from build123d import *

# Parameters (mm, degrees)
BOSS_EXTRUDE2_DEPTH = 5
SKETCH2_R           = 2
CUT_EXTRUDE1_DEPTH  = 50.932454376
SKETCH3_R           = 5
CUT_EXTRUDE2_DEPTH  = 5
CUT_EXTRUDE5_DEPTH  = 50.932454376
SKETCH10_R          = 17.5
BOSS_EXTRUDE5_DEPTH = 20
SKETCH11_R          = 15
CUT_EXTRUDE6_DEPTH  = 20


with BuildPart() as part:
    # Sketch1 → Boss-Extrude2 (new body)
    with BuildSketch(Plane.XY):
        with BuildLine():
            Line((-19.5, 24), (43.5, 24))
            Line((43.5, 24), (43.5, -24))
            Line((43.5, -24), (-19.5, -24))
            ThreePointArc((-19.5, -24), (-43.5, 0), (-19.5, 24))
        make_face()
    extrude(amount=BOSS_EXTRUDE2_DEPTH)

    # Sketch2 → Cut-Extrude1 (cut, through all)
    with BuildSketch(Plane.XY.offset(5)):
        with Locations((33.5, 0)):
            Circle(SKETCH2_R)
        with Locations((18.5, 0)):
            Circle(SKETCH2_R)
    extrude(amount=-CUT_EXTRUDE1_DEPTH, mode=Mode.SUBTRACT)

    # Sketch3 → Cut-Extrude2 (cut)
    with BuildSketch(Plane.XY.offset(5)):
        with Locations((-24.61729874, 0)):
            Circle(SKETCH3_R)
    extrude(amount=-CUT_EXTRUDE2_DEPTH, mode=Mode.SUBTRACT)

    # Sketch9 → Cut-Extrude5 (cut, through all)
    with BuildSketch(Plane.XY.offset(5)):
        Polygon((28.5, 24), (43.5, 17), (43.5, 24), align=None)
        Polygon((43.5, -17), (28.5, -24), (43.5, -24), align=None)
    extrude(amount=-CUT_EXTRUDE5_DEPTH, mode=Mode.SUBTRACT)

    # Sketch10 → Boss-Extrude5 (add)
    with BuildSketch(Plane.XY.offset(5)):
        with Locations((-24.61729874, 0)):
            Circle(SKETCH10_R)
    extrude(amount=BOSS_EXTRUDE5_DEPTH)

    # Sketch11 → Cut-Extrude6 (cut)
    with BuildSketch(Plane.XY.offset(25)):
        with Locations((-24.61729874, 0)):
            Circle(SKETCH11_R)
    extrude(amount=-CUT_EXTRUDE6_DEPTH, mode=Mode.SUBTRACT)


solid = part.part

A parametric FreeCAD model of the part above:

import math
import FreeCAD as App
import Part
import Sketcher

doc = App.newDocument("Part")
params = doc.addObject("Spreadsheet::Sheet", "Params")
for row, (alias, value) in enumerate([
    ("sketch1_radius", "24 mm"),
    ("sketch1_width", "63 mm"),
    ("pad1_length", "5 mm"),
    ("sketch2_diameter", "4 mm"),
    ("sketch3_diameter", "10 mm"),
    ("pocket2_length", "5 mm"),
    ("sketch4_width", "15 mm"),
    ("sketch4_height", "7 mm"),
    ("sketch5_diameter", "35 mm"),
    ("pad2_length", "20 mm"),
    ("sketch6_diameter", "30 mm"),
    ("pocket4_length", "20 mm"),
], start=1):
    params.set(f"A{row}", alias)
    params.set(f"B{row}", "=" + value)
    params.setAlias(f"B{row}", alias)

body = doc.addObject("PartDesign::Body", "Body")

# Sketch on XY plane
sketch1 = body.newObject("Sketcher::SketchObject", "Sketch")
sketch1.AttachmentSupport = (doc.getObject("XY_Plane"), [""])
sketch1.MapMode = "FlatFace"
sketch1.addGeometry(Part.LineSegment(App.Vector(43.5, 24, 0), App.Vector(-19.5, 24, 0)), False)
sketch1.addGeometry(Part.ArcOfCircle(Part.Circle(App.Vector(-19.5, 0, 0), App.Vector(0, 0, 1), 24), math.radians(90), math.radians(270)), False)
sketch1.addGeometry(Part.LineSegment(App.Vector(-19.5, -24, 0), App.Vector(43.5, -24, 0)), False)
sketch1.addGeometry(Part.LineSegment(App.Vector(43.5, -24, 0), App.Vector(43.5, 24, 0)), False)
sketch1.addConstraint(Sketcher.Constraint("Tangent", 0, 2, 1, 1))
sketch1.addConstraint(Sketcher.Constraint("Tangent", 1, 2, 2, 1))
sketch1.addConstraint(Sketcher.Constraint("Coincident", 2, 2, 3, 1))
sketch1.addConstraint(Sketcher.Constraint("Coincident", 3, 2, 0, 1))
sketch1.addConstraint(Sketcher.Constraint("Horizontal", 0))
sketch1.addConstraint(Sketcher.Constraint("Horizontal", 2))
sketch1.addConstraint(Sketcher.Constraint("Vertical", 3))
sketch1.addConstraint(Sketcher.Constraint("PointOnObject", 1, 3, -1))
sketch1.addConstraint(Sketcher.Constraint("Radius", 1, 24.0))
sketch1.addConstraint(Sketcher.Constraint("DistanceX", 0, 2, 0, 1, 63.0))
sketch1.addConstraint(Sketcher.Constraint("DistanceX", 1, 3, -1, 1, 19.5))
sketch1.setExpression("Constraints[8]", "Params.sketch1_radius")
sketch1.setExpression("Constraints[9]", "Params.sketch1_width")
pad1 = body.newObject("PartDesign::Pad", "Pad")
pad1.Profile = sketch1
pad1.setExpression("Length", "Params.pad1_length")

# Sketch on XY plane
sketch2 = body.newObject("Sketcher::SketchObject", "Sketch001")
sketch2.AttachmentSupport = (doc.getObject("XY_Plane"), [""])
sketch2.MapMode = "FlatFace"
sketch2.AttachmentOffset = App.Placement(App.Vector(0, 0, 5), App.Rotation())
sketch2.addGeometry(Part.Circle(App.Vector(33.5, 0, 0), App.Vector(0, 0, 1), 2), False)
sketch2.addGeometry(Part.Circle(App.Vector(18.5, 0, 0), App.Vector(0, 0, 1), 2), False)
sketch2.addConstraint(Sketcher.Constraint("Equal", 0, 1))
sketch2.addConstraint(Sketcher.Constraint("PointOnObject", 0, 3, -1))
sketch2.addConstraint(Sketcher.Constraint("PointOnObject", 1, 3, -1))
sketch2.addConstraint(Sketcher.Constraint("Diameter", 0, 4.0))
sketch2.addConstraint(Sketcher.Constraint("DistanceX", 1, 3, 0, 3, 15.0))
sketch2.addConstraint(Sketcher.Constraint("DistanceX", -1, 1, 0, 3, 33.5))
sketch2.setExpression("Constraints[3]", "Params.sketch2_diameter")
pocket1 = body.newObject("PartDesign::Pocket", "Pocket")
pocket1.Profile = sketch2
pocket1.Type = "ThroughAll"

# Sketch on XY plane
sketch3 = body.newObject("Sketcher::SketchObject", "Sketch002")
sketch3.AttachmentSupport = (doc.getObject("XY_Plane"), [""])
sketch3.MapMode = "FlatFace"
sketch3.AttachmentOffset = App.Placement(App.Vector(0, 0, 5), App.Rotation())
sketch3.addGeometry(Part.Circle(App.Vector(-24.617299, 0, 0), App.Vector(0, 0, 1), 5), False)
sketch3.addConstraint(Sketcher.Constraint("PointOnObject", 0, 3, -1))
sketch3.addConstraint(Sketcher.Constraint("Diameter", 0, 10.0))
sketch3.addConstraint(Sketcher.Constraint("DistanceX", 0, 3, -1, 1, 24.617299))
sketch3.setExpression("Constraints[1]", "Params.sketch3_diameter")
pocket2 = body.newObject("PartDesign::Pocket", "Pocket001")
pocket2.Profile = sketch3
pocket2.setExpression("Length", "Params.pocket2_length")

# Sketch on XY plane
sketch4 = body.newObject("Sketcher::SketchObject", "Sketch003")
sketch4.AttachmentSupport = (doc.getObject("XY_Plane"), [""])
sketch4.MapMode = "FlatFace"
sketch4.AttachmentOffset = App.Placement(App.Vector(0, 0, 5), App.Rotation())
sketch4.addGeometry(Part.LineSegment(App.Vector(28.5, 24, 0), App.Vector(43.5, 17, 0)), False)
sketch4.addGeometry(Part.LineSegment(App.Vector(43.5, 17, 0), App.Vector(43.5, 24, 0)), False)
sketch4.addGeometry(Part.LineSegment(App.Vector(43.5, 24, 0), App.Vector(28.5, 24, 0)), False)
sketch4.addGeometry(Part.LineSegment(App.Vector(43.5, -17, 0), App.Vector(28.5, -24, 0)), False)
sketch4.addGeometry(Part.LineSegment(App.Vector(28.5, -24, 0), App.Vector(43.5, -24, 0)), False)
sketch4.addGeometry(Part.LineSegment(App.Vector(43.5, -24, 0), App.Vector(43.5, -17, 0)), False)
sketch4.addConstraint(Sketcher.Constraint("Coincident", 0, 2, 1, 1))
sketch4.addConstraint(Sketcher.Constraint("Coincident", 1, 2, 2, 1))
sketch4.addConstraint(Sketcher.Constraint("Coincident", 2, 2, 0, 1))
sketch4.addConstraint(Sketcher.Constraint("Coincident", 3, 2, 4, 1))
sketch4.addConstraint(Sketcher.Constraint("Coincident", 4, 2, 5, 1))
sketch4.addConstraint(Sketcher.Constraint("Coincident", 5, 2, 3, 1))
sketch4.addConstraint(Sketcher.Constraint("Vertical", 1))
sketch4.addConstraint(Sketcher.Constraint("Horizontal", 2))
sketch4.addConstraint(Sketcher.Constraint("Horizontal", 4))
sketch4.addConstraint(Sketcher.Constraint("Vertical", 5))
sketch4.addConstraint(Sketcher.Constraint("Symmetric", 2, 2, 3, 2, -1))
sketch4.addConstraint(Sketcher.Constraint("Symmetric", 0, 2, 5, 2, -1))
sketch4.addConstraint(Sketcher.Constraint("DistanceX", 2, 2, 2, 1, 15.0))
sketch4.addConstraint(Sketcher.Constraint("DistanceY", 1, 1, 1, 2, 7.0))
sketch4.addConstraint(Sketcher.Constraint("DistanceY", -1, 1, 0, 2, 17.0))
sketch4.addConstraint(Sketcher.Constraint("DistanceX", -1, 1, 0, 2, 43.5))
sketch4.setExpression("Constraints[12]", "Params.sketch4_width")
sketch4.setExpression("Constraints[13]", "Params.sketch4_height")
pocket3 = body.newObject("PartDesign::Pocket", "Pocket002")
pocket3.Profile = sketch4
pocket3.Type = "ThroughAll"

# Sketch on XY plane
sketch5 = body.newObject("Sketcher::SketchObject", "Sketch004")
sketch5.AttachmentSupport = (doc.getObject("XY_Plane"), [""])
sketch5.MapMode = "FlatFace"
sketch5.AttachmentOffset = App.Placement(App.Vector(0, 0, 5), App.Rotation())
sketch5.addGeometry(Part.Circle(App.Vector(-24.617299, 0, 0), App.Vector(0, 0, 1), 17.5), False)
sketch5.addConstraint(Sketcher.Constraint("PointOnObject", 0, 3, -1))
sketch5.addConstraint(Sketcher.Constraint("Diameter", 0, 35.0))
sketch5.addConstraint(Sketcher.Constraint("DistanceX", 0, 3, -1, 1, 24.617299))
sketch5.setExpression("Constraints[1]", "Params.sketch5_diameter")
pad2 = body.newObject("PartDesign::Pad", "Pad001")
pad2.Profile = sketch5
pad2.setExpression("Length", "Params.pad2_length")

# Sketch on XY plane
sketch6 = body.newObject("Sketcher::SketchObject", "Sketch005")
sketch6.AttachmentSupport = (doc.getObject("XY_Plane"), [""])
sketch6.MapMode = "FlatFace"
sketch6.AttachmentOffset = App.Placement(App.Vector(0, 0, 25), App.Rotation())
sketch6.addGeometry(Part.Circle(App.Vector(-24.617299, 0, 0), App.Vector(0, 0, 1), 15), False)
sketch6.addConstraint(Sketcher.Constraint("PointOnObject", 0, 3, -1))
sketch6.addConstraint(Sketcher.Constraint("Diameter", 0, 30.0))
sketch6.addConstraint(Sketcher.Constraint("DistanceX", 0, 3, -1, 1, 24.617299))
sketch6.setExpression("Constraints[1]", "Params.sketch6_diameter")
pocket4 = body.newObject("PartDesign::Pocket", "Pocket003")
pocket4.Profile = sketch6
pocket4.setExpression("Length", "Params.pocket4_length")

doc.recompute()
